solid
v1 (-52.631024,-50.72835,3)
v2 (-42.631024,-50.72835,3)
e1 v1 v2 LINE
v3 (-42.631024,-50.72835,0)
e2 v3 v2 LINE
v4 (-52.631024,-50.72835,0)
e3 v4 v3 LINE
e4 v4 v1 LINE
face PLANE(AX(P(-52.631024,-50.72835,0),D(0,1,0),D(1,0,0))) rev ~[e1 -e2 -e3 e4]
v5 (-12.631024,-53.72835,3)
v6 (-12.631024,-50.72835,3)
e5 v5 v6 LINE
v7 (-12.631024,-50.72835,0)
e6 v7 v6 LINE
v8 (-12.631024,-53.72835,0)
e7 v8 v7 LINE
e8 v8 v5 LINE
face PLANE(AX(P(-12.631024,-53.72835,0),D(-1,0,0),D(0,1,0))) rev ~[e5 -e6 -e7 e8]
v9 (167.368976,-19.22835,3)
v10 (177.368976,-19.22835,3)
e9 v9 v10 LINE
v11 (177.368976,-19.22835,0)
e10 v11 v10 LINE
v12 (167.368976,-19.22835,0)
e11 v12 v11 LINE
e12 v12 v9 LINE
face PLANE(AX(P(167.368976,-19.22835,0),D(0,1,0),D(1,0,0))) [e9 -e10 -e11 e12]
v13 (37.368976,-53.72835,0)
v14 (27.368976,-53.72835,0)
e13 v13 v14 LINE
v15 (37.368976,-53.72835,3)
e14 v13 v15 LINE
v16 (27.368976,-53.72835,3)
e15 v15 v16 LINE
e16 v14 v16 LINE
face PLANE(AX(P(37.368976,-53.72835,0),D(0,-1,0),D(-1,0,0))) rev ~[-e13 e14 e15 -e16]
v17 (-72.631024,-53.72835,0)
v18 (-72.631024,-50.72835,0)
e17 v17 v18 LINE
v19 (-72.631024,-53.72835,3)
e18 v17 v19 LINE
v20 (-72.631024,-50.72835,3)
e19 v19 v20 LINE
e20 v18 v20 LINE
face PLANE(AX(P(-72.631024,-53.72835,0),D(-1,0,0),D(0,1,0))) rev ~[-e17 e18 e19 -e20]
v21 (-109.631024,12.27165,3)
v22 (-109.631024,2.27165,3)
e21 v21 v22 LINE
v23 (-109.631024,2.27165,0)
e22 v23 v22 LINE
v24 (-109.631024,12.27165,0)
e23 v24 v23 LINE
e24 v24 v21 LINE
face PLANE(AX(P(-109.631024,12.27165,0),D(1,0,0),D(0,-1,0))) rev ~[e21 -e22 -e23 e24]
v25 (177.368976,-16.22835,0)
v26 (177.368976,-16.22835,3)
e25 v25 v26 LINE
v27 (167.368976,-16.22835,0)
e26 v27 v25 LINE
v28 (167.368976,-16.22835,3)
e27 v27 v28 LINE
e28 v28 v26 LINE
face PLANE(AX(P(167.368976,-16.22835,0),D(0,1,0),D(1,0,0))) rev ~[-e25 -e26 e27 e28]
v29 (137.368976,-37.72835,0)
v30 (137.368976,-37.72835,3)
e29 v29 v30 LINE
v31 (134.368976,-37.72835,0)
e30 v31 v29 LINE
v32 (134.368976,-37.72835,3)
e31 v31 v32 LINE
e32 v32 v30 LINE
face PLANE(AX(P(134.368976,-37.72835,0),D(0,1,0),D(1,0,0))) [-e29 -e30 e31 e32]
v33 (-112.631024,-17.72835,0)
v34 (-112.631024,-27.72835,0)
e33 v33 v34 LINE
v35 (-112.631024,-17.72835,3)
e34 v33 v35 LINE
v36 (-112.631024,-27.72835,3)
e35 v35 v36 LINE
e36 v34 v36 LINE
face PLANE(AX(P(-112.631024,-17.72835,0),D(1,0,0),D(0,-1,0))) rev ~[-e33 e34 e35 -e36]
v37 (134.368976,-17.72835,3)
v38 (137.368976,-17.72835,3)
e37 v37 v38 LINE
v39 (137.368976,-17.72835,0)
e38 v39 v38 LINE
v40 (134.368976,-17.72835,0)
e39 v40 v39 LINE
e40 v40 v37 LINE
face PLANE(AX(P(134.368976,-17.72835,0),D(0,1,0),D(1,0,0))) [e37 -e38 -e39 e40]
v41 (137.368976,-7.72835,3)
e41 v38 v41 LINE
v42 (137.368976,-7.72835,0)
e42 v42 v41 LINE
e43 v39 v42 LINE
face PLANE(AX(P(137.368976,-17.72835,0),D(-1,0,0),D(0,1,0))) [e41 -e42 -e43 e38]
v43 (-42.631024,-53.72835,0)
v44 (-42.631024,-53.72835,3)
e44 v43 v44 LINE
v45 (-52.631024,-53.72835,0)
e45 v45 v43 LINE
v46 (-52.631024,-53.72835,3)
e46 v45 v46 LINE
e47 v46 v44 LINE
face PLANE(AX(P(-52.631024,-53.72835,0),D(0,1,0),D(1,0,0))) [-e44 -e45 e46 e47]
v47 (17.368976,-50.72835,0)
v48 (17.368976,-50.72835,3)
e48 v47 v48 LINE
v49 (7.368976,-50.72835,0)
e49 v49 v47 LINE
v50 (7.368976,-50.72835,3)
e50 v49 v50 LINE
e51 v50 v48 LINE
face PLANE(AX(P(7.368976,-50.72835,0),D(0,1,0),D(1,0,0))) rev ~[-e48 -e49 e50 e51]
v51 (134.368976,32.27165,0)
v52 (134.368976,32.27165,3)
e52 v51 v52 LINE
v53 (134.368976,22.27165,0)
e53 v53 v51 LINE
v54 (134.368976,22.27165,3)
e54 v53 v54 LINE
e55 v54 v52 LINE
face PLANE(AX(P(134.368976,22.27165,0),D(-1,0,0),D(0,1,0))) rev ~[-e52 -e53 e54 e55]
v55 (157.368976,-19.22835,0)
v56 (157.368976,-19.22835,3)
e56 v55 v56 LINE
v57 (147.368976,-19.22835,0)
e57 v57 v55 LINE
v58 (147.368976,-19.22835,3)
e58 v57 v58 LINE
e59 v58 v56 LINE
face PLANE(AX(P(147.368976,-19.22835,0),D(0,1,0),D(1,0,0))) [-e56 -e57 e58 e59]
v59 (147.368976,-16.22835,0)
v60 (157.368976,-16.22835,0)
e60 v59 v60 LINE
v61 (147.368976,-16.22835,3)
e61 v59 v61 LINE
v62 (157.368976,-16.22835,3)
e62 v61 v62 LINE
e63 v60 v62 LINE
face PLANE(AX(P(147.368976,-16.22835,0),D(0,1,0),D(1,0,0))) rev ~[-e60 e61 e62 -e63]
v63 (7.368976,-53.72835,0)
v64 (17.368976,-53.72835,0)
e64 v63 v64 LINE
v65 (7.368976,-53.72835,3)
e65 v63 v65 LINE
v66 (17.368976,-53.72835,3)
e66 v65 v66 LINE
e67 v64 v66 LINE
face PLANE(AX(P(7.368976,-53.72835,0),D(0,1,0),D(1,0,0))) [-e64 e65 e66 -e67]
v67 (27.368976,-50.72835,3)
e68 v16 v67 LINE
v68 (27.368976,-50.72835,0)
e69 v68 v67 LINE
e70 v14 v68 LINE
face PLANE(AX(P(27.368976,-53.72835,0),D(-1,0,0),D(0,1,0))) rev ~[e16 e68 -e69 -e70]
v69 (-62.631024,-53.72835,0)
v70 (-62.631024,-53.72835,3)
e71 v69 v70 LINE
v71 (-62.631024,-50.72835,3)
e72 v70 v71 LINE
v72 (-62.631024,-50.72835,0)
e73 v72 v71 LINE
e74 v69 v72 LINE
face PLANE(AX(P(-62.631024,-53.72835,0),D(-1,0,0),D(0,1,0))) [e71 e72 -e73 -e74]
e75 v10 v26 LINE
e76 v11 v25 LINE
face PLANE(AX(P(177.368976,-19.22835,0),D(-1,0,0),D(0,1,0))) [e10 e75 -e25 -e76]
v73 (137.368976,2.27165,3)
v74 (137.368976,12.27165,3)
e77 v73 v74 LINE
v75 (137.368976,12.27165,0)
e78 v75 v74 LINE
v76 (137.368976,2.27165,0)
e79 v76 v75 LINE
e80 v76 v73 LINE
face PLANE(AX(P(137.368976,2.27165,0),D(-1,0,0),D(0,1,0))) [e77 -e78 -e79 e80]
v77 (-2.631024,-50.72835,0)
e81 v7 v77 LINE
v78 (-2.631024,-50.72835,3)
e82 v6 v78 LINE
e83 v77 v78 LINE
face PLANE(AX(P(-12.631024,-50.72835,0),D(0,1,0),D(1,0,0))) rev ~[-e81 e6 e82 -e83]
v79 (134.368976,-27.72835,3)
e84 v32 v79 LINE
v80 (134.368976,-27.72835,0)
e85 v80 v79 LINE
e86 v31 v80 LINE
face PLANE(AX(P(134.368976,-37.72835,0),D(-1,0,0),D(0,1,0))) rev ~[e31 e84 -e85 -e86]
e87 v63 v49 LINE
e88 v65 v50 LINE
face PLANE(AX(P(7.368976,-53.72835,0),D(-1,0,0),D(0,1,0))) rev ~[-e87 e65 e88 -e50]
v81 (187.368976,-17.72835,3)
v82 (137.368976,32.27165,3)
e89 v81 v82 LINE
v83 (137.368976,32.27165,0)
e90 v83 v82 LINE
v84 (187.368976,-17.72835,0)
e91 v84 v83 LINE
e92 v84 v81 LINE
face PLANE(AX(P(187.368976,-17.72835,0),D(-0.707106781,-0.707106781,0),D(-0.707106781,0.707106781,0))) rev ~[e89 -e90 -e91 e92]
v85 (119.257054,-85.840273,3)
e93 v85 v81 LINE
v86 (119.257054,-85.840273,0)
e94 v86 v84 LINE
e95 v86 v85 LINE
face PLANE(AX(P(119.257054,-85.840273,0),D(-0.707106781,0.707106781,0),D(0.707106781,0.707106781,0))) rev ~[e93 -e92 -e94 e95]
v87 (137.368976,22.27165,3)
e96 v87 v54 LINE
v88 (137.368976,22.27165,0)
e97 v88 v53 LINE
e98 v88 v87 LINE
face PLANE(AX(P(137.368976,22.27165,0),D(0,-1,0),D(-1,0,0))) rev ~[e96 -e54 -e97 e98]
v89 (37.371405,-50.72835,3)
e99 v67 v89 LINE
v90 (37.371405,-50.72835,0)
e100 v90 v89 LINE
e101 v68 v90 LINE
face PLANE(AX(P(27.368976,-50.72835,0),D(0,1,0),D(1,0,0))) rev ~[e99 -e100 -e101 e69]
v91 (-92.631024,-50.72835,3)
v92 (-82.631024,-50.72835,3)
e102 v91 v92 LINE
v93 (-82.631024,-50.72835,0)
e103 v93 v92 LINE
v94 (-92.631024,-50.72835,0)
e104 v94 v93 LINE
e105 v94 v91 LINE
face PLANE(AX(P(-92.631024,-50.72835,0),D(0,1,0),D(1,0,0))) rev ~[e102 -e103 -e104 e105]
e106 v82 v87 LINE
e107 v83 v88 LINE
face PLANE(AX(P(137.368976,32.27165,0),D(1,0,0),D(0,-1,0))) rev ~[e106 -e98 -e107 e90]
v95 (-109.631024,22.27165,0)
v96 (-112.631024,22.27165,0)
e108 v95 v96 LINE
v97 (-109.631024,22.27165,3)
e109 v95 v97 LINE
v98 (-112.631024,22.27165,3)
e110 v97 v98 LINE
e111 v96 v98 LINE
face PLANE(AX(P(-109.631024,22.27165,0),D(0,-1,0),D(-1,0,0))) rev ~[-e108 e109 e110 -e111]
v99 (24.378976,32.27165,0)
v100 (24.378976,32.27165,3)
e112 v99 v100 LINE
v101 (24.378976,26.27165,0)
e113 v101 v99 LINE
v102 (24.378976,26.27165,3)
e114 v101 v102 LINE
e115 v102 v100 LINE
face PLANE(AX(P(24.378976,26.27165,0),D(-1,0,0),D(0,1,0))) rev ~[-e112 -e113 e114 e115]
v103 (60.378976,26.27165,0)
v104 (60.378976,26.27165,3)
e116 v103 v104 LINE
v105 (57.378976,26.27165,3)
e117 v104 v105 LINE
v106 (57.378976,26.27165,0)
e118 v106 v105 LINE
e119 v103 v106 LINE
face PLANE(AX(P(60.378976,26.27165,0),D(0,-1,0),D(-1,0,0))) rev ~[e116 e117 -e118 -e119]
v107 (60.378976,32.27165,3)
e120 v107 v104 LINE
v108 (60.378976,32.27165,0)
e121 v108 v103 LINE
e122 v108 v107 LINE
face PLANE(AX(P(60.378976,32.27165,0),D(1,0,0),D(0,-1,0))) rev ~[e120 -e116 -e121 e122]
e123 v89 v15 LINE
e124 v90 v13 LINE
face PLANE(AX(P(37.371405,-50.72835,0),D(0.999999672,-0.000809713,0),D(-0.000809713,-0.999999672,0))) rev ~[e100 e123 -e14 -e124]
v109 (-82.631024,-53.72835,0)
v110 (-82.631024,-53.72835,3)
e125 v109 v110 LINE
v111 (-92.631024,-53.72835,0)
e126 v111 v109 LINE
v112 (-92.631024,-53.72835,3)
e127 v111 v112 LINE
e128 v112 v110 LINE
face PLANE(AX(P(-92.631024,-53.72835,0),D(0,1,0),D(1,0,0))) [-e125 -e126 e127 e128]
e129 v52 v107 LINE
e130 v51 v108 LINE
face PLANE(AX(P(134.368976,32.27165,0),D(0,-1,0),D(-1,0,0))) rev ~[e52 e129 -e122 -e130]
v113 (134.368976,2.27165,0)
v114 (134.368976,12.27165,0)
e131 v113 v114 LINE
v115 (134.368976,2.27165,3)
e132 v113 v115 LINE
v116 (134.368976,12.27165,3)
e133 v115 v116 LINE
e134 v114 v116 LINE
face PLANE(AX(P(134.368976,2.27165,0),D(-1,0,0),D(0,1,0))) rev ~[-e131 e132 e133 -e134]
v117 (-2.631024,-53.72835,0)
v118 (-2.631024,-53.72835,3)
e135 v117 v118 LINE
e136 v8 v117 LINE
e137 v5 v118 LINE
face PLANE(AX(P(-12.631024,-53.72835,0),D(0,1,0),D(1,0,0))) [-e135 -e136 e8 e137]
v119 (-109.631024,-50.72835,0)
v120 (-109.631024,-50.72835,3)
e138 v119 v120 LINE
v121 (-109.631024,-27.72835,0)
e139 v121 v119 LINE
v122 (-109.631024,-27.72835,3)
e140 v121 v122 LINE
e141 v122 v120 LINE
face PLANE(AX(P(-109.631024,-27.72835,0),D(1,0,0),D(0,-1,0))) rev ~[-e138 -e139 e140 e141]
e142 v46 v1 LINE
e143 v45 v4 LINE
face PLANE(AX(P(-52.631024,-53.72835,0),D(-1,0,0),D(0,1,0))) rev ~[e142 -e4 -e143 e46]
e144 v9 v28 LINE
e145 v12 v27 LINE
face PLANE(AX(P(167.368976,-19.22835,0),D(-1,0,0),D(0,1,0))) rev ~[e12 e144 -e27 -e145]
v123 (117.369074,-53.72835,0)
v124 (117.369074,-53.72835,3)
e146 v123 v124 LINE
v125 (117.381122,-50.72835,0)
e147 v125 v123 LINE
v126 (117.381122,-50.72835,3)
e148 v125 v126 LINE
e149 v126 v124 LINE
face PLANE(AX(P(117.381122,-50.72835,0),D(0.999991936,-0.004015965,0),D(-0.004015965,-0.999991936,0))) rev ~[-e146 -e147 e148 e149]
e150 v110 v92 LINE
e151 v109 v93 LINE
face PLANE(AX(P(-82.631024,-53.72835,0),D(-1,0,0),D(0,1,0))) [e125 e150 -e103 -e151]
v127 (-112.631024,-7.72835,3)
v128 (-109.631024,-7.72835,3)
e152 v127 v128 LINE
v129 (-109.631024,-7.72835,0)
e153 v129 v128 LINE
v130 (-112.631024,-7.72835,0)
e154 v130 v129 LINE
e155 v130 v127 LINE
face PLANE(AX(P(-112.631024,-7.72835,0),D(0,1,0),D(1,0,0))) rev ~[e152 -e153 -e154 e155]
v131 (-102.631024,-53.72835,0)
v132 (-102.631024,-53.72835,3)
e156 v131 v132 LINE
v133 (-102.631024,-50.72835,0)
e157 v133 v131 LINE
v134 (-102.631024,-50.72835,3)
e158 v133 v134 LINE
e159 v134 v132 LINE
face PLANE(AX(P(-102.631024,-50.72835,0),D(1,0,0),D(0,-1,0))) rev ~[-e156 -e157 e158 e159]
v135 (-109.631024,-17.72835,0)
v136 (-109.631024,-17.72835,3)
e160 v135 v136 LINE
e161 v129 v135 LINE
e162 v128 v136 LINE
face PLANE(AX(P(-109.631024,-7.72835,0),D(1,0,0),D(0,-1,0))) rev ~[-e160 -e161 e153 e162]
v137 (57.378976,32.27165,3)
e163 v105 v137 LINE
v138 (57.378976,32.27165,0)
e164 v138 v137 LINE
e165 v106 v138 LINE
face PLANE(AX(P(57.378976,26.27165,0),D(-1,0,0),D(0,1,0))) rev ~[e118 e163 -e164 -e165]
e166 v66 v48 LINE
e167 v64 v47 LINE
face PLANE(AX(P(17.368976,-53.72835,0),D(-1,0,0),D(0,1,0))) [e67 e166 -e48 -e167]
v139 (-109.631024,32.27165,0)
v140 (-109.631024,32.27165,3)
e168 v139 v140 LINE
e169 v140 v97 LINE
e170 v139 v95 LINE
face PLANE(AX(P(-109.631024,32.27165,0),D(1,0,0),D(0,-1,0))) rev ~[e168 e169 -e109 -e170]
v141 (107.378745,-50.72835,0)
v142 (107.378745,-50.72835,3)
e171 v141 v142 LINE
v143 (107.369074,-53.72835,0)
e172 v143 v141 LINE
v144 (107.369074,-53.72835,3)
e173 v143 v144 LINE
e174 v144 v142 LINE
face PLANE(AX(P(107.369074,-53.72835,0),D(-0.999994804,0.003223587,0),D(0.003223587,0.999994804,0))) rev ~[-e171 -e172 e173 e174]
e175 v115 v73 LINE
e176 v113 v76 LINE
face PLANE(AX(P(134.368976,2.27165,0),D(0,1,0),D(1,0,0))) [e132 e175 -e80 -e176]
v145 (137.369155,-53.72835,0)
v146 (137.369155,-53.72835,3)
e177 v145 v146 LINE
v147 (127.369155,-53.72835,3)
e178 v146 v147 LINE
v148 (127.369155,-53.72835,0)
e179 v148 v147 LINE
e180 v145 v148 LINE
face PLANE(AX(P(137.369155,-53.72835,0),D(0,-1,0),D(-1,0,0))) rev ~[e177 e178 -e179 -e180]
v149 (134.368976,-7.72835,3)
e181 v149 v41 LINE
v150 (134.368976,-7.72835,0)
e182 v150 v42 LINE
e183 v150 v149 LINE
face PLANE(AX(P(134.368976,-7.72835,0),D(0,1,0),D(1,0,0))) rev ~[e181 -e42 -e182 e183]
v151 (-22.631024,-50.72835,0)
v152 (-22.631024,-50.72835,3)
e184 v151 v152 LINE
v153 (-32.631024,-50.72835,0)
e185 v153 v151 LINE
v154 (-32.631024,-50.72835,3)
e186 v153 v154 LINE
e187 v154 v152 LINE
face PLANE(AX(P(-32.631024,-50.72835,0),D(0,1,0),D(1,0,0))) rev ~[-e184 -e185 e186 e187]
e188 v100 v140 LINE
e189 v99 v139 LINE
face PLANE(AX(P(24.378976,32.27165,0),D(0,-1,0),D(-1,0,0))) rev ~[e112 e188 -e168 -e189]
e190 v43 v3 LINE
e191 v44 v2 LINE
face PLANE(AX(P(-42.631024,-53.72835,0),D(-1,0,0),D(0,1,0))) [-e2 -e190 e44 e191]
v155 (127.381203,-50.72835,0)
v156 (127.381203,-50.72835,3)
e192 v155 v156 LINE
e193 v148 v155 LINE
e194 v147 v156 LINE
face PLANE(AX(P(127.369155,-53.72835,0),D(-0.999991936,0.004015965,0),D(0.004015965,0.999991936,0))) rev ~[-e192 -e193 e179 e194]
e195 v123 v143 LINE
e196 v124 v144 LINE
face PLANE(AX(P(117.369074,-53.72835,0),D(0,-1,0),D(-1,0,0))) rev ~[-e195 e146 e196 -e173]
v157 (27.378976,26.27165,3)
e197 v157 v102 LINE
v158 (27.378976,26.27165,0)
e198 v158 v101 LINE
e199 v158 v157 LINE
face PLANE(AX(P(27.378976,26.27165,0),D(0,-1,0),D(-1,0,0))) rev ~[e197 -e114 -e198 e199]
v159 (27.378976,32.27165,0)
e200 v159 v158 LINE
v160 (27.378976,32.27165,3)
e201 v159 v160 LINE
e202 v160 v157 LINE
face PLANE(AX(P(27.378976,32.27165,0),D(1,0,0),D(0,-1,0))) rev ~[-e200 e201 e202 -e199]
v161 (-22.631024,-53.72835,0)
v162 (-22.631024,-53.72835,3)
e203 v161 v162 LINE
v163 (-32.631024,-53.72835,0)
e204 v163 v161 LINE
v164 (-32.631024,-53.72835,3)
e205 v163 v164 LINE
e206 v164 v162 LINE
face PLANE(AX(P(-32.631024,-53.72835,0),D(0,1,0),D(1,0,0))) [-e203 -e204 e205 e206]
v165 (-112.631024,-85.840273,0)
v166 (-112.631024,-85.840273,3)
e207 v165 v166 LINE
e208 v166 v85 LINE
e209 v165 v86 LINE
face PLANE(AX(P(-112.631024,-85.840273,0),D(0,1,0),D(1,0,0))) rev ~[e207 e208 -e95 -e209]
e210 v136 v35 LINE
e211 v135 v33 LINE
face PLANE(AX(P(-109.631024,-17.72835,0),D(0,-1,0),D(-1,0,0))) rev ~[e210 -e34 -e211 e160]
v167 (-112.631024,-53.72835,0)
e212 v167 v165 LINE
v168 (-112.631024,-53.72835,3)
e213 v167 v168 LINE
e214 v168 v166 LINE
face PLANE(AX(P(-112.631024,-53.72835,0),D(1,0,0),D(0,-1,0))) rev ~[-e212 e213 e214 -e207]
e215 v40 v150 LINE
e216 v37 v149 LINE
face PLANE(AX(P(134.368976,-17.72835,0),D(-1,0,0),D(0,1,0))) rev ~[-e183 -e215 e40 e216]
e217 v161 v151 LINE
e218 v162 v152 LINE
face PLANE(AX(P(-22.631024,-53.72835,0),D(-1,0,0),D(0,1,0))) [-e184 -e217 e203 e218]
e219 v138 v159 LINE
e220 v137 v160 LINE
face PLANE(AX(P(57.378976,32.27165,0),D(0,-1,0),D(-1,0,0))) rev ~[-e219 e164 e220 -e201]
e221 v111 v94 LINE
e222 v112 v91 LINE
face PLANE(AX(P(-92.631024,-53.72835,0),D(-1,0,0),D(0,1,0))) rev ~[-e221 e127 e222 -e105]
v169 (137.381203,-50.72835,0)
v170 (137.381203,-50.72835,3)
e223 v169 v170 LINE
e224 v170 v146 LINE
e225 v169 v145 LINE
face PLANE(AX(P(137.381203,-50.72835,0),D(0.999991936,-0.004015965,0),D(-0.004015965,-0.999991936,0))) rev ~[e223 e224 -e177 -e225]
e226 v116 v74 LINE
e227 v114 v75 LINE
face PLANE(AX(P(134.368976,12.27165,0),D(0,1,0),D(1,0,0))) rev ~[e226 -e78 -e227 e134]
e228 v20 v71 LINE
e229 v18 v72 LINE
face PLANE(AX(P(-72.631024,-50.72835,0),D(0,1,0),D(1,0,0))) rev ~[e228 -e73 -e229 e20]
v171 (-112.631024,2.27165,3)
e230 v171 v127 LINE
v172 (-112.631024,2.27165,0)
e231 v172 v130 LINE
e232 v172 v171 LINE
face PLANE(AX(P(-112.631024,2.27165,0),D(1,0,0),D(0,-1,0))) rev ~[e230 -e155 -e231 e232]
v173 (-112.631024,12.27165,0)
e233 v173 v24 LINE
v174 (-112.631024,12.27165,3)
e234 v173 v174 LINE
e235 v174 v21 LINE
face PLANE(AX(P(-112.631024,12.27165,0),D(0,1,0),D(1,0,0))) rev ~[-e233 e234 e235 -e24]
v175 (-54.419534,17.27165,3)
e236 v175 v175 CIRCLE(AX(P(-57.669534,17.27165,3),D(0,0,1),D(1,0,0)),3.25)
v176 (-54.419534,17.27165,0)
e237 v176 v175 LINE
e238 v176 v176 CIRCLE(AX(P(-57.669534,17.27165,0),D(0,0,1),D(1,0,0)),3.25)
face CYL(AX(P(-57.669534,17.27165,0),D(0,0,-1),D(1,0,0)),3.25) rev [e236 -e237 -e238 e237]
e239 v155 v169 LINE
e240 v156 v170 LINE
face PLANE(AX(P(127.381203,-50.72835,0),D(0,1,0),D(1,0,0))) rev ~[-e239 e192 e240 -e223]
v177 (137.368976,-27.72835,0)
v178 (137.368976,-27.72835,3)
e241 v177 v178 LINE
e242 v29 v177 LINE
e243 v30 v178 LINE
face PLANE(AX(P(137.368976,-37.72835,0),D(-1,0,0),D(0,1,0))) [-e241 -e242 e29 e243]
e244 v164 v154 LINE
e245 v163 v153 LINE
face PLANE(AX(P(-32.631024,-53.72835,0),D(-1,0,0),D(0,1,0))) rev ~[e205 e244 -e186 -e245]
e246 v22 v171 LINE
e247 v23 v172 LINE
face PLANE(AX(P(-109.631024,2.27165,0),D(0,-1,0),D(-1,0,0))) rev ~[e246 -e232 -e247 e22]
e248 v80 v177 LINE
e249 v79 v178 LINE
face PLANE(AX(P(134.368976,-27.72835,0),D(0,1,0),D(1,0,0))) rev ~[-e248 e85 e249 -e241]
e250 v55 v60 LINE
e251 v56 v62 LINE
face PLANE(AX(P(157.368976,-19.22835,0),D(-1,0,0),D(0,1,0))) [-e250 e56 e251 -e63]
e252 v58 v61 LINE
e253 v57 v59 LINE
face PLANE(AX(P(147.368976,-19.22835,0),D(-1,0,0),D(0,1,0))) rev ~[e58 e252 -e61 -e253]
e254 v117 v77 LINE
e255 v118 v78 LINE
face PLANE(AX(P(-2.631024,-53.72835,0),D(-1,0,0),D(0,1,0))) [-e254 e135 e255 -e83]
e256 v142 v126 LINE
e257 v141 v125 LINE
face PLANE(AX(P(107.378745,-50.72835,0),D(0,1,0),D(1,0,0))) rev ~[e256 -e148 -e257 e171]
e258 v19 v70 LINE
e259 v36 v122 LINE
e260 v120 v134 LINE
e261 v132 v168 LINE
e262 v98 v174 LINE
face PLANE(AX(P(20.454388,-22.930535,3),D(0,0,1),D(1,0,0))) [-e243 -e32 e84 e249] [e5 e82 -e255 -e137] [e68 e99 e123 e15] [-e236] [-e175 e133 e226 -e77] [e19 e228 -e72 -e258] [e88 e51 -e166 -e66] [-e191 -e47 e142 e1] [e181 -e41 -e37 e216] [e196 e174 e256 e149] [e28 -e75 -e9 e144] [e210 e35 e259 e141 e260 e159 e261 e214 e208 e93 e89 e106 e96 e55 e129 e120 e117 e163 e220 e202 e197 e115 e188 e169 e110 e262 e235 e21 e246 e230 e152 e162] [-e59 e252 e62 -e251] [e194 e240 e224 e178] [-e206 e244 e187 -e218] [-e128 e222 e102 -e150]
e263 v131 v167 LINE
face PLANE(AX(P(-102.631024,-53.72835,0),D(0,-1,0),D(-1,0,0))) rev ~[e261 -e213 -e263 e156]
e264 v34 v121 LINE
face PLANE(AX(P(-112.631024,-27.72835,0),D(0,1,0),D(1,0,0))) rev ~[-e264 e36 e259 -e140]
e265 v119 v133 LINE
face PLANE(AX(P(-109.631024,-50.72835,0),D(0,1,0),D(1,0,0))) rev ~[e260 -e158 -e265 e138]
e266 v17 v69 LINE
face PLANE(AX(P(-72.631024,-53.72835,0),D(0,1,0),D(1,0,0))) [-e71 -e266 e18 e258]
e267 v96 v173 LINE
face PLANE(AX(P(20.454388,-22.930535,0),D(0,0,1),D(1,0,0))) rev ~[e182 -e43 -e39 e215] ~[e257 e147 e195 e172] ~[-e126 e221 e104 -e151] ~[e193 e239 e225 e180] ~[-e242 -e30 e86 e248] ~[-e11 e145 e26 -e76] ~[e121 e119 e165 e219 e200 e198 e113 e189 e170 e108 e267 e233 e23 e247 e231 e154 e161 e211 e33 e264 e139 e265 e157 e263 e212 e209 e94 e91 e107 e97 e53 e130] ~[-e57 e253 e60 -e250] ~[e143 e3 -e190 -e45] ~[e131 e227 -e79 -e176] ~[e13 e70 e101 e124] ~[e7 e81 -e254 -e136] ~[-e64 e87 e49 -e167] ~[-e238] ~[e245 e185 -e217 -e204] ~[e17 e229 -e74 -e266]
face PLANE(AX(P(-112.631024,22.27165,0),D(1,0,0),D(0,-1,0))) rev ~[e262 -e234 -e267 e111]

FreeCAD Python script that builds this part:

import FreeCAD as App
import Part
import Sketcher
Q = App.Units.Quantity

doc = App.newDocument("Part")
body = doc.addObject("PartDesign::Body", "Body")

# Sketch on XY plane
sketch1 = doc.addObject("Sketcher::SketchObject", "Sketch")
body.addObject(sketch1)
sketch1.AttachmentSupport = (doc.XY_Plane, [""])
sketch1.MapMode = "FlatFace"
sketch1.addGeometry(Part.LineSegment(App.Vector(-112.631024, -53.72835, 0), App.Vector(-112.631024, -85.840273, 0)), False)
sketch1.addGeometry(Part.LineSegment(App.Vector(-112.631024, -85.840273, 0), App.Vector(119.257054, -85.840273, 0)), False)
sketch1.addGeometry(Part.LineSegment(App.Vector(119.257054, -85.840273, 0), App.Vector(187.368976, -17.72835, 0)), False)
sketch1.addGeometry(Part.LineSegment(App.Vector(187.368976, -17.72835, 0), App.Vector(137.368976, 32.27165, 0)), False)
sketch1.addGeometry(Part.LineSegment(App.Vector(137.368976, 32.27165, 0), App.Vector(137.368976, 22.27165, 0)), False)
sketch1.addGeometry(Part.LineSegment(App.Vector(137.368976, 22.27165, 0), App.Vector(134.368976, 22.27165, 0)), False)
sketch1.addGeometry(Part.LineSegment(App.Vector(134.368976, 22.27165, 0), App.Vector(134.368976, 32.27165, 0)), False)
sketch1.addGeometry(Part.LineSegment(App.Vector(134.368976, 32.27165, 0), App.Vector(60.378976, 32.27165, 0)), False)
sketch1.addGeometry(Part.LineSegment(App.Vector(60.378976, 32.27165, 0), App.Vector(60.378976, 26.27165, 0)), False)
sketch1.addGeometry(Part.LineSegment(App.Vector(60.378976, 26.27165, 0), App.Vector(57.378976, 26.27165, 0)), False)
sketch1.addGeometry(Part.LineSegment(App.Vector(57.378976, 26.27165, 0), App.Vector(57.378976, 32.27165, 0)), False)
sketch1.addGeometry(Part.LineSegment(App.Vector(57.378976, 32.27165, 0), App.Vector(27.378976, 32.27165, 0)), False)
sketch1.addGeometry(Part.LineSegment(App.Vector(27.378976, 32.27165, 0), App.Vector(27.378976, 26.27165, 0)), False)
sketch1.addGeometry(Part.LineSegment(App.Vector(27.378976, 26.27165, 0), App.Vector(24.378976, 26.27165, 0)), False)
sketch1.addGeometry(Part.LineSegment(App.Vector(24.378976, 26.27165, 0), App.Vector(24.378976, 32.27165, 0)), False)
sketch1.addGeometry(Part.LineSegment(App.Vector(24.378976, 32.27165, 0), App.Vector(-109.631024, 32.27165, 0)), False)
sketch1.addGeometry(Part.LineSegment(App.Vector(-109.631024, 32.27165, 0), App.Vector(-109.631024, 22.27165, 0)), False)
sketch1.addGeometry(Part.LineSegment(App.Vector(-109.631024, 22.27165, 0), App.Vector(-112.631024, 22.27165, 0)), False)
sketch1.addGeometry(Part.LineSegment(App.Vector(-112.631024, 22.27165, 0), App.Vector(-112.631024, 12.27165, 0)), False)
sketch1.addGeometry(Part.LineSegment(App.Vector(-112.631024, 12.27165, 0), App.Vector(-109.631024, 12.27165, 0)), False)
sketch1.addGeometry(Part.LineSegment(App.Vector(-109.631024, 12.27165, 0), App.Vector(-109.631024, 2.27165, 0)), False)
sketch1.addGeometry(Part.LineSegment(App.Vector(-109.631024, 2.27165, 0), App.Vector(-112.631024, 2.27165, 0)), False)
sketch1.addGeometry(Part.LineSegment(App.Vector(-112.631024, 2.27165, 0), App.Vector(-112.631024, -7.72835, 0)), False)
sketch1.addGeometry(Part.LineSegment(App.Vector(-112.631024, -7.72835, 0), App.Vector(-109.631024, -7.72835, 0)), False)
sketch1.addGeometry(Part.LineSegment(App.Vector(-109.631024, -7.72835, 0), App.Vector(-109.631024, -17.72835, 0)), False)
sketch1.addGeometry(Part.LineSegment(App.Vector(-109.631024, -17.72835, 0), App.Vector(-112.631024, -17.72835, 0)), False)
sketch1.addGeometry(Part.LineSegment(App.Vector(-112.631024, -17.72835, 0), App.Vector(-112.631024, -27.72835, 0)), False)
sketch1.addGeometry(Part.LineSegment(App.Vector(-112.631024, -27.72835, 0), App.Vector(-109.631024, -27.72835, 0)), False)
sketch1.addGeometry(Part.LineSegment(App.Vector(-109.631024, -27.72835, 0), App.Vector(-109.631024, -50.72835, 0)), False)
sketch1.addGeometry(Part.LineSegment(App.Vector(-109.631024, -50.72835, 0), App.Vector(-102.631024, -50.72835, 0)), False)
sketch1.addGeometry(Part.LineSegment(App.Vector(-102.631024, -50.72835, 0), App.Vector(-102.631024, -53.72835, 0)), False)
sketch1.addGeometry(Part.LineSegment(App.Vector(-102.631024, -53.72835, 0), App.Vector(-112.631024, -53.72835, 0)), False)
sketch1.addGeometry(Part.LineSegment(App.Vector(-82.631024, -53.72835, 0), App.Vector(-92.631024, -53.72835, 0)), False)
sketch1.addGeometry(Part.LineSegment(App.Vector(-92.631024, -53.72835, 0), App.Vector(-92.631024, -50.72835, 0)), False)
sketch1.addGeometry(Part.LineSegment(App.Vector(-92.631024, -50.72835, 0), App.Vector(-82.631024, -50.72835, 0)), False)
sketch1.addGeometry(Part.LineSegment(App.Vector(-82.631024, -50.72835, 0), App.Vector(-82.631024, -53.72835, 0)), False)
sketch1.addGeometry(Part.LineSegment(App.Vector(-62.631024, -53.72835, 0), App.Vector(-72.631024, -53.72835, 0)), False)
sketch1.addGeometry(Part.LineSegment(App.Vector(-72.631024, -53.72835, 0), App.Vector(-72.631024, -50.72835, 0)), False)
sketch1.addGeometry(Part.LineSegment(App.Vector(-72.631024, -50.72835, 0), App.Vector(-62.631024, -50.72835, 0)), False)
sketch1.addGeometry(Part.LineSegment(App.Vector(-62.631024, -50.72835, 0), App.Vector(-62.631024, -53.72835, 0)), False)
sketch1.addGeometry(Part.LineSegment(App.Vector(-42.631024, -53.72835, 0), App.Vector(-52.631024, -53.72835, 0)), False)
sketch1.addGeometry(Part.LineSegment(App.Vector(-52.631024, -53.72835, 0), App.Vector(-52.631024, -50.72835, 0)), False)
sketch1.addGeometry(Part.LineSegment(App.Vector(-52.631024, -50.72835, 0), App.Vector(-42.631024, -50.72835, 0)), False)
sketch1.addGeometry(Part.LineSegment(App.Vector(-42.631024, -50.72835, 0), App.Vector(-42.631024, -53.72835, 0)), False)
sketch1.addGeometry(Part.LineSegment(App.Vector(-22.631024, -53.72835, 0), App.Vector(-32.631024, -53.72835, 0)), False)
sketch1.addGeometry(Part.LineSegment(App.Vector(-32.631024, -53.72835, 0), App.Vector(-32.631024, -50.72835, 0)), False)
sketch1.addGeometry(Part.LineSegment(App.Vector(-32.631024, -50.72835, 0), App.Vector(-22.631024, -50.72835, 0)), False)
sketch1.addGeometry(Part.LineSegment(App.Vector(-22.631024, -50.72835, 0), App.Vector(-22.631024, -53.72835, 0)), False)
sketch1.addGeometry(Part.LineSegment(App.Vector(-2.631024, -53.72835, 0), App.Vector(-12.631024, -53.72835, 0)), False)
sketch1.addGeometry(Part.LineSegment(App.Vector(-12.631024, -53.72835, 0), App.Vector(-12.631024, -50.72835, 0)), False)
sketch1.addGeometry(Part.LineSegment(App.Vector(-12.631024, -50.72835, 0), App.Vector(-2.631024, -50.72835, 0)), False)
sketch1.addGeometry(Part.LineSegment(App.Vector(-2.631024, -50.72835, 0), App.Vector(-2.631024, -53.72835, 0)), False)
sketch1.addGeometry(Part.LineSegment(App.Vector(17.368976, -53.72835, 0), App.Vector(7.368976, -53.72835, 0)), False)
sketch1.addGeometry(Part.LineSegment(App.Vector(7.368976, -53.72835, 0), App.Vector(7.368976, -50.72835, 0)), False)
sketch1.addGeometry(Part.LineSegment(App.Vector(7.368976, -50.72835, 0), App.Vector(17.368976, -50.72835, 0)), False)
sketch1.addGeometry(Part.LineSegment(App.Vector(17.368976, -50.72835, 0), App.Vector(17.368976, -53.72835, 0)), False)
sketch1.addGeometry(Part.LineSegment(App.Vector(27.368976, -53.72835, 0), App.Vector(27.368976, -50.72835, 0)), False)
sketch1.addGeometry(Part.LineSegment(App.Vector(27.368976, -50.72835, 0), App.Vector(37.371405, -50.72835, 0)), False)
sketch1.addGeometry(Part.LineSegment(App.Vector(37.371405, -50.72835, 0), App.Vector(37.368976, -53.72835, 0)), False)
sketch1.addGeometry(Part.LineSegment(App.Vector(37.368976, -53.72835, 0), App.Vector(27.368976, -53.72835, 0)), False)
sketch1.addGeometry(Part.LineSegment(App.Vector(107.369074, -53.72835, 0), App.Vector(107.378745, -50.72835, 0)), False)
sketch1.addGeometry(Part.LineSegment(App.Vector(107.378745, -50.72835, 0), App.Vector(117.381122, -50.72835, 0)), False)
sketch1.addGeometry(Part.LineSegment(App.Vector(117.381122, -50.72835, 0), App.Vector(117.369074, -53.72835, 0)), False)
sketch1.addGeometry(Part.LineSegment(App.Vector(117.369074, -53.72835, 0), App.Vector(107.369074, -53.72835, 0)), False)
sketch1.addGeometry(Part.LineSegment(App.Vector(127.369155, -53.72835, 0), App.Vector(127.381203, -50.72835, 0)), False)
sketch1.addGeometry(Part.LineSegment(App.Vector(127.381203, -50.72835, 0), App.Vector(137.381203, -50.72835, 0)), False)
sketch1.addGeometry(Part.LineSegment(App.Vector(137.381203, -50.72835, 0), App.Vector(137.369155, -53.72835, 0)), False)
sketch1.addGeometry(Part.LineSegment(App.Vector(137.369155, -53.72835, 0), App.Vector(127.369155, -53.72835, 0)), False)
sketch1.addGeometry(Part.LineSegment(App.Vector(137.368976, -37.72835, 0), App.Vector(134.368976, -37.72835, 0)), False)
sketch1.addGeometry(Part.LineSegment(App.Vector(134.368976, -37.72835, 0), App.Vector(134.368976, -27.72835, 0)), False)
sketch1.addGeometry(Part.LineSegment(App.Vector(134.368976, -27.72835, 0), App.Vector(137.368976, -27.72835, 0)), False)
sketch1.addGeometry(Part.LineSegment(App.Vector(137.368976, -27.72835, 0), App.Vector(137.368976, -37.72835, 0)), False)
sketch1.addGeometry(Part.LineSegment(App.Vector(157.368976, -19.22835, 0), App.Vector(147.368976, -19.22835, 0)), False)
sketch1.addGeometry(Part.LineSegment(App.Vector(147.368976, -19.22835, 0), App.Vector(147.368976, -16.22835, 0)), False)
sketch1.addGeometry(Part.LineSegment(App.Vector(147.368976, -16.22835, 0), App.Vector(157.368976, -16.22835, 0)), False)
sketch1.addGeometry(Part.LineSegment(App.Vector(157.368976, -16.22835, 0), App.Vector(157.368976, -19.22835, 0)), False)
sketch1.addGeometry(Part.LineSegment(App.Vector(177.368976, -19.22835, 0), App.Vector(167.368976, -19.22835, 0)), False)
sketch1.addGeometry(Part.LineSegment(App.Vector(167.368976, -19.22835, 0), App.Vector(167.368976, -16.22835, 0)), False)
sketch1.addGeometry(Part.LineSegment(App.Vector(167.368976, -16.22835, 0), App.Vector(177.368976, -16.22835, 0)), False)
sketch1.addGeometry(Part.LineSegment(App.Vector(177.368976, -16.22835, 0), App.Vector(177.368976, -19.22835, 0)), False)
sketch1.addGeometry(Part.Circle(App.Vector(-57.669534, 17.27165, 0), App.Vector(0, 0, 1), 3.25), False)
sketch1.addGeometry(Part.LineSegment(App.Vector(137.368976, -17.72835, 0), App.Vector(134.368976, -17.72835, 0)), False)
sketch1.addGeometry(Part.LineSegment(App.Vector(134.368976, -17.72835, 0), App.Vector(134.368976, -7.72835, 0)), False)
sketch1.addGeometry(Part.LineSegment(App.Vector(134.368976, -7.72835, 0), App.Vector(137.368976, -7.72835, 0)), False)
sketch1.addGeometry(Part.LineSegment(App.Vector(137.368976, -7.72835, 0), App.Vector(137.368976, -17.72835, 0)), False)
sketch1.addGeometry(Part.LineSegment(App.Vector(137.368976, 2.27165, 0), App.Vector(134.368976, 2.27165, 0)), False)
sketch1.addGeometry(Part.LineSegment(App.Vector(134.368976, 2.27165, 0), App.Vector(134.368976, 12.27165, 0)), False)
sketch1.addGeometry(Part.LineSegment(App.Vector(134.368976, 12.27165, 0), App.Vector(137.368976, 12.27165, 0)), False)
sketch1.addGeometry(Part.LineSegment(App.Vector(137.368976, 12.27165, 0), App.Vector(137.368976, 2.27165, 0)), False)
sketch1.addConstraint(Sketcher.Constraint("Coincident", 0, 2, 1, 1))
sketch1.addConstraint(Sketcher.Constraint("Coincident", 1, 2, 2, 1))
sketch1.addConstraint(Sketcher.Constraint("Coincident", 2, 2, 3, 1))
sketch1.addConstraint(Sketcher.Constraint("Coincident", 3, 2, 4, 1))
sketch1.addConstraint(Sketcher.Constraint("Coincident", 4, 2, 5, 1))
sketch1.addConstraint(Sketcher.Constraint("Coincident", 5, 2, 6, 1))
sketch1.addConstraint(Sketcher.Constraint("Coincident", 6, 2, 7, 1))
sketch1.addConstraint(Sketcher.Constraint("Coincident", 7, 2, 8, 1))
sketch1.addConstraint(Sketcher.Constraint("Coincident", 8, 2, 9, 1))
sketch1.addConstraint(Sketcher.Constraint("Coincident", 9, 2, 10, 1))
sketch1.addConstraint(Sketcher.Constraint("Coincident", 10, 2, 11, 1))
sketch1.addConstraint(Sketcher.Constraint("Coincident", 11, 2, 12, 1))
sketch1.addConstraint(Sketcher.Constraint("Coincident", 12, 2, 13, 1))
sketch1.addConstraint(Sketcher.Constraint("Coincident", 13, 2, 14, 1))
sketch1.addConstraint(Sketcher.Constraint("Coincident", 14, 2, 15, 1))
sketch1.addConstraint(Sketcher.Constraint("Coincident", 15, 2, 16, 1))
sketch1.addConstraint(Sketcher.Constraint("Coincident", 16, 2, 17, 1))
sketch1.addConstraint(Sketcher.Constraint("Coincident", 17, 2, 18, 1))
sketch1.addConstraint(Sketcher.Constraint("Coincident", 18, 2, 19, 1))
sketch1.addConstraint(Sketcher.Constraint("Coincident", 19, 2, 20, 1))
sketch1.addConstraint(Sketcher.Constraint("Coincident", 20, 2, 21, 1))
sketch1.addConstraint(Sketcher.Constraint("Coincident", 21, 2, 22, 1))
sketch1.addConstraint(Sketcher.Constraint("Coincident", 22, 2, 23, 1))
sketch1.addConstraint(Sketcher.Constraint("Coincident", 23, 2, 24, 1))
sketch1.addConstraint(Sketcher.Constraint("Coincident", 24, 2, 25, 1))
sketch1.addConstraint(Sketcher.Constraint("Coincident", 25, 2, 26, 1))
sketch1.addConstraint(Sketcher.Constraint("Coincident", 26, 2, 27, 1))
sketch1.addConstraint(Sketcher.Constraint("Coincident", 27, 2, 28, 1))
sketch1.addConstraint(Sketcher.Constraint("Coincident", 28, 2, 29, 1))
sketch1.addConstraint(Sketcher.Constraint("Coincident", 29, 2, 30, 1))
sketch1.addConstraint(Sketcher.Constraint("Coincident", 30, 2, 31, 1))
sketch1.addConstraint(Sketcher.Constraint("Coincident", 31, 2, 0, 1))
sketch1.addConstraint(Sketcher.Constraint("Coincident", 32, 2, 33, 1))
sketch1.addConstraint(Sketcher.Constraint("Coincident", 33, 2, 34, 1))
sketch1.addConstraint(Sketcher.Constraint("Coincident", 34, 2, 35, 1))
sketch1.addConstraint(Sketcher.Constraint("Coincident", 35, 2, 32, 1))
sketch1.addConstraint(Sketcher.Constraint("Coincident", 36, 2, 37, 1))
sketch1.addConstraint(Sketcher.Constraint("Coincident", 37, 2, 38, 1))
sketch1.addConstraint(Sketcher.Constraint("Coincident", 38, 2, 39, 1))
sketch1.addConstraint(Sketcher.Constraint("Coincident", 39, 2, 36, 1))
sketch1.addConstraint(Sketcher.Constraint("Coincident", 40, 2, 41, 1))
sketch1.addConstraint(Sketcher.Constraint("Coincident", 41, 2, 42, 1))
sketch1.addConstraint(Sketcher.Constraint("Coincident", 42, 2, 43, 1))
sketch1.addConstraint(Sketcher.Constraint("Coincident", 43, 2, 40, 1))
sketch1.addConstraint(Sketcher.Constraint("Coincident", 44, 2, 45, 1))
sketch1.addConstraint(Sketcher.Constraint("Coincident", 45, 2, 46, 1))
sketch1.addConstraint(Sketcher.Constraint("Coincident", 46, 2, 47, 1))
sketch1.addConstraint(Sketcher.Constraint("Coincident", 47, 2, 44, 1))
sketch1.addConstraint(Sketcher.Constraint("Coincident", 48, 2, 49, 1))
sketch1.addConstraint(Sketcher.Constraint("Coincident", 49, 2, 50, 1))
sketch1.addConstraint(Sketcher.Constraint("Coincident", 50, 2, 51, 1))
sketch1.addConstraint(Sketcher.Constraint("Coincident", 51, 2, 48, 1))
sketch1.addConstraint(Sketcher.Constraint("Coincident", 52, 2, 53, 1))
sketch1.addConstraint(Sketcher.Constraint("Coincident", 53, 2, 54, 1))
sketch1.addConstraint(Sketcher.Constraint("Coincident", 54, 2, 55, 1))
sketch1.addConstraint(Sketcher.Constraint("Coincident", 55, 2, 52, 1))
sketch1.addConstraint(Sketcher.Constraint("Coincident", 56, 2, 57, 1))
sketch1.addConstraint(Sketcher.Constraint("Coincident", 57, 2, 58, 1))
sketch1.addConstraint(Sketcher.Constraint("Coincident", 58, 2, 59, 1))
sketch1.addConstraint(Sketcher.Constraint("Coincident", 59, 2, 56, 1))
sketch1.addConstraint(Sketcher.Constraint("Coincident", 60, 2, 61, 1))
sketch1.addConstraint(Sketcher.Constraint("Coincident", 61, 2, 62, 1))
sketch1.addConstraint(Sketcher.Constraint("Coincident", 62, 2, 63, 1))
sketch1.addConstraint(Sketcher.Constraint("Coincident", 63, 2, 60, 1))
sketch1.addConstraint(Sketcher.Constraint("Coincident", 64, 2, 65, 1))
sketch1.addConstraint(Sketcher.Constraint("Coincident", 65, 2, 66, 1))
sketch1.addConstraint(Sketcher.Constraint("Coincident", 66, 2, 67, 1))
sketch1.addConstraint(Sketcher.Constraint("Coincident", 67, 2, 64, 1))
sketch1.addConstraint(Sketcher.Constraint("Coincident", 68, 2, 69, 1))
sketch1.addConstraint(Sketcher.Constraint("Coincident", 69, 2, 70, 1))
sketch1.addConstraint(Sketcher.Constraint("Coincident", 70, 2, 71, 1))
sketch1.addConstraint(Sketcher.Constraint("Coincident", 71, 2, 68, 1))
sketch1.addConstraint(Sketcher.Constraint("Coincident", 72, 2, 73, 1))
sketch1.addConstraint(Sketcher.Constraint("Coincident", 73, 2, 74, 1))
sketch1.addConstraint(Sketcher.Constraint("Coincident", 74, 2, 75, 1))
sketch1.addConstraint(Sketcher.Constraint("Coincident", 75, 2, 72, 1))
sketch1.addConstraint(Sketcher.Constraint("Coincident", 76, 2, 77, 1))
sketch1.addConstraint(Sketcher.Constraint("Coincident", 77, 2, 78, 1))
sketch1.addConstraint(Sketcher.Constraint("Coincident", 78, 2, 79, 1))
sketch1.addConstraint(Sketcher.Constraint("Coincident", 79, 2, 76, 1))
sketch1.addConstraint(Sketcher.Constraint("Coincident", 81, 2, 82, 1))
sketch1.addConstraint(Sketcher.Constraint("Coincident", 82, 2, 83, 1))
sketch1.addConstraint(Sketcher.Constraint("Coincident", 83, 2, 84, 1))
sketch1.addConstraint(Sketcher.Constraint("Coincident", 84, 2, 81, 1))
sketch1.addConstraint(Sketcher.Constraint("Coincident", 85, 2, 86, 1))
sketch1.addConstraint(Sketcher.Constraint("Coincident", 86, 2, 87, 1))
sketch1.addConstraint(Sketcher.Constraint("Coincident", 87, 2, 88, 1))
sketch1.addConstraint(Sketcher.Constraint("Coincident", 88, 2, 85, 1))
sketch1.addConstraint(Sketcher.Constraint("Vertical", 0))
sketch1.addConstraint(Sketcher.Constraint("Horizontal", 1))
sketch1.addConstraint(Sketcher.Constraint("Vertical", 4))
sketch1.addConstraint(Sketcher.Constraint("Horizontal", 5))
sketch1.addConstraint(Sketcher.Constraint("Vertical", 6))
sketch1.addConstraint(Sketcher.Constraint("Horizontal", 7))
sketch1.addConstraint(Sketcher.Constraint("Vertical", 8))
sketch1.addConstraint(Sketcher.Constraint("Horizontal", 9))
sketch1.addConstraint(Sketcher.Constraint("Vertical", 10))
sketch1.addConstraint(Sketcher.Constraint("Horizontal", 11))
sketch1.addConstraint(Sketcher.Constraint("Vertical", 12))
sketch1.addConstraint(Sketcher.Constraint("Horizontal", 13))
sketch1.addConstraint(Sketcher.Constraint("Vertical", 14))
sketch1.addConstraint(Sketcher.Constraint("Horizontal", 15))
sketch1.addConstraint(Sketcher.Constraint("Vertical", 16))
sketch1.addConstraint(Sketcher.Constraint("Horizontal", 17))
sketch1.addConstraint(Sketcher.Constraint("Vertical", 18))
sketch1.addConstraint(Sketcher.Constraint("Horizontal", 19))
sketch1.addConstraint(Sketcher.Constraint("Vertical", 20))
sketch1.addConstraint(Sketcher.Constraint("Horizontal", 21))
sketch1.addConstraint(Sketcher.Constraint("Vertical", 22))
sketch1.addConstraint(Sketcher.Constraint("Horizontal", 23))
sketch1.addConstraint(Sketcher.Constraint("Vertical", 24))
sketch1.addConstraint(Sketcher.Constraint("Horizontal", 25))
sketch1.addConstraint(Sketcher.Constraint("Vertical", 26))
sketch1.addConstraint(Sketcher.Constraint("Horizontal", 27))
sketch1.addConstraint(Sketcher.Constraint("Vertical", 28))
sketch1.addConstraint(Sketcher.Constraint("Horizontal", 29))
sketch1.addConstraint(Sketcher.Constraint("Vertical", 30))
sketch1.addConstraint(Sketcher.Constraint("Horizontal", 31))
sketch1.addConstraint(Sketcher.Constraint("Horizontal", 32))
sketch1.addConstraint(Sketcher.Constraint("Vertical", 33))
sketch1.addConstraint(Sketcher.Constraint("Horizontal", 34))
sketch1.addConstraint(Sketcher.Constraint("Vertical", 35))
sketch1.addConstraint(Sketcher.Constraint("Horizontal", 36))
sketch1.addConstraint(Sketcher.Constraint("Vertical", 37))
sketch1.addConstraint(Sketcher.Constraint("Horizontal", 38))
sketch1.addConstraint(Sketcher.Constraint("Vertical", 39))
sketch1.addConstraint(Sketcher.Constraint("Horizontal", 40))
sketch1.addConstraint(Sketcher.Constraint("Vertical", 41))
sketch1.addConstraint(Sketcher.Constraint("Horizontal", 42))
sketch1.addConstraint(Sketcher.Constraint("Vertical", 43))
sketch1.addConstraint(Sketcher.Constraint("Horizontal", 44))
sketch1.addConstraint(Sketcher.Constraint("Vertical", 45))
sketch1.addConstraint(Sketcher.Constraint("Horizontal", 46))
sketch1.addConstraint(Sketcher.Constraint("Vertical", 47))
sketch1.addConstraint(Sketcher.Constraint("Horizontal", 48))
sketch1.addConstraint(Sketcher.Constraint("Vertical", 49))
sketch1.addConstraint(Sketcher.Constraint("Horizontal", 50))
sketch1.addConstraint(Sketcher.Constraint("Vertical", 51))
sketch1.addConstraint(Sketcher.Constraint("Horizontal", 52))
sketch1.addConstraint(Sketcher.Constraint("Vertical", 53))
sketch1.addConstraint(Sketcher.Constraint("Horizontal", 54))
sketch1.addConstraint(Sketcher.Constraint("Vertical", 55))
sketch1.addConstraint(Sketcher.Constraint("Vertical", 56))
sketch1.addConstraint(Sketcher.Constraint("Horizontal", 57))
sketch1.addConstraint(Sketcher.Constraint("Horizontal", 59))
sketch1.addConstraint(Sketcher.Constraint("Horizontal", 61))
sketch1.addConstraint(Sketcher.Constraint("Horizontal", 63))
sketch1.addConstraint(Sketcher.Constraint("Horizontal", 65))
sketch1.addConstraint(Sketcher.Constraint("Horizontal", 67))
sketch1.addConstraint(Sketcher.Constraint("Horizontal", 68))
sketch1.addConstraint(Sketcher.Constraint("Vertical", 69))
sketch1.addConstraint(Sketcher.Constraint("Horizontal", 70))
sketch1.addConstraint(Sketcher.Constraint("Vertical", 71))
sketch1.addConstraint(Sketcher.Constraint("Horizontal", 72))
sketch1.addConstraint(Sketcher.Constraint("Vertical", 73))
sketch1.addConstraint(Sketcher.Constraint("Horizontal", 74))
sketch1.addConstraint(Sketcher.Constraint("Vertical", 75))
sketch1.addConstraint(Sketcher.Constraint("Horizontal", 76))
sketch1.addConstraint(Sketcher.Constraint("Vertical", 77))
sketch1.addConstraint(Sketcher.Constraint("Horizontal", 78))
sketch1.addConstraint(Sketcher.Constraint("Vertical", 79))
sketch1.addConstraint(Sketcher.Constraint("Horizontal", 81))
sketch1.addConstraint(Sketcher.Constraint("Vertical", 82))
sketch1.addConstraint(Sketcher.Constraint("Horizontal", 83))
sketch1.addConstraint(Sketcher.Constraint("Vertical", 84))
sketch1.addConstraint(Sketcher.Constraint("Horizontal", 85))
sketch1.addConstraint(Sketcher.Constraint("Vertical", 86))
sketch1.addConstraint(Sketcher.Constraint("Horizontal", 87))
sketch1.addConstraint(Sketcher.Constraint("Vertical", 88))
sketch1.addConstraint(Sketcher.Constraint("Perpendicular", 2, 3))
sketch1.addConstraint(Sketcher.Constraint("Parallel", 62, 64))
sketch1.addConstraint(Sketcher.Constraint("Parallel", 64, 66))
sketch1.addConstraint(Sketcher.Constraint("Horizontal", 3, 2, 6, 2))
sketch1.addConstraint(Sketcher.Constraint("Horizontal", 7, 2, 10, 2))
sketch1.addConstraint(Sketcher.Constraint("Horizontal", 9, 2, 12, 2))
sketch1.addConstraint(Sketcher.Constraint("Horizontal", 11, 2, 14, 2))
sketch1.addConstraint(Sketcher.Constraint("Horizontal", 5, 2, 16, 2))
sketch1.addConstraint(Sketcher.Constraint("Horizontal", 2, 2, 24, 2))
sketch1.addConstraint(Sketcher.Constraint("Horizontal", 31, 2, 32, 2))
sketch1.addConstraint(Sketcher.Constraint("Horizontal", 29, 2, 33, 2))
sketch1.addConstraint(Sketcher.Constraint("Horizontal", 35, 2, 36, 2))
sketch1.addConstraint(Sketcher.Constraint("Horizontal", 34, 2, 37, 2))
sketch1.addConstraint(Sketcher.Constraint("Horizontal", 39, 2, 40, 2))
sketch1.addConstraint(Sketcher.Constraint("Horizontal", 38, 2, 41, 2))
sketch1.addConstraint(Sketcher.Constraint("Horizontal", 43, 2, 44, 2))
sketch1.addConstraint(Sketcher.Constraint("Horizontal", 42, 2, 45, 2))
sketch1.addConstraint(Sketcher.Constraint("Horizontal", 47, 2, 48, 2))
sketch1.addConstraint(Sketcher.Constraint("Horizontal", 46, 2, 49, 2))
sketch1.addConstraint(Sketcher.Constraint("Horizontal", 51, 2, 52, 2))
sketch1.addConstraint(Sketcher.Constraint("Horizontal", 50, 2, 53, 2))
sketch1.addConstraint(Sketcher.Constraint("Horizontal", 54, 2, 56, 2))
sketch1.addConstraint(Sketcher.Constraint("Horizontal", 55, 2, 58, 2))
sketch1.addConstraint(Sketcher.Constraint("Horizontal", 57, 2, 60, 2))
sketch1.addConstraint(Sketcher.Constraint("Horizontal", 59, 2, 62, 2))
sketch1.addConstraint(Sketcher.Constraint("Horizontal", 61, 2, 64, 2))
sketch1.addConstraint(Sketcher.Constraint("Horizontal", 63, 2, 66, 2))
sketch1.addConstraint(Sketcher.Constraint("Horizontal", 27, 2, 69, 2))
sketch1.addConstraint(Sketcher.Constraint("Horizontal", 75, 2, 76, 2))
sketch1.addConstraint(Sketcher.Constraint("Horizontal", 74, 2, 77, 2))
sketch1.addConstraint(Sketcher.Constraint("Horizontal", 25, 2, 81, 2))
sketch1.addConstraint(Sketcher.Constraint("Horizontal", 23, 2, 82, 2))
sketch1.addConstraint(Sketcher.Constraint("Horizontal", 21, 2, 85, 2))
sketch1.addConstraint(Sketcher.Constraint("Horizontal", 19, 2, 86, 2))
sketch1.addConstraint(Sketcher.Constraint("Vertical", 0, 2, 17, 2))
sketch1.addConstraint(Sketcher.Constraint("Vertical", 16, 2, 19, 2))
sketch1.addConstraint(Sketcher.Constraint("Vertical", 18, 2, 21, 2))
sketch1.addConstraint(Sketcher.Constraint("Vertical", 20, 2, 23, 2))
sketch1.addConstraint(Sketcher.Constraint("Vertical", 22, 2, 25, 2))
sketch1.addConstraint(Sketcher.Constraint("Vertical", 24, 2, 27, 2))
sketch1.addConstraint(Sketcher.Constraint("Vertical", 6, 2, 68, 2))
sketch1.addConstraint(Sketcher.Constraint("Vertical", 4, 2, 70, 2))
sketch1.addConstraint(Sketcher.Constraint("Vertical", 69, 2, 81, 2))
sketch1.addConstraint(Sketcher.Constraint("Vertical", 71, 2, 83, 2))
sketch1.addConstraint(Sketcher.Constraint("Vertical", 82, 2, 85, 2))
sketch1.addConstraint(Sketcher.Constraint("Vertical", 84, 2, 87, 2))
sketch1.addConstraint(Sketcher.Constraint("Equal", 5, 9))
sketch1.addConstraint(Sketcher.Constraint("Equal", 9, 13))
sketch1.addConstraint(Sketcher.Constraint("Equal", 13, 17))
sketch1.addConstraint(Sketcher.Constraint("Equal", 31, 32))
sketch1.addConstraint(Sketcher.Constraint("Equal", 34, 36))
sketch1.addConstraint(Sketcher.Constraint("Equal", 38, 40))
sketch1.addConstraint(Sketcher.Constraint("Equal", 42, 44))
sketch1.addConstraint(Sketcher.Constraint("Equal", 46, 48))
sketch1.addConstraint(Sketcher.Constraint("Equal", 50, 52))
sketch1.addConstraint(Sketcher.Constraint("Equal", 54, 59))
sketch1.addConstraint(Sketcher.Constraint("Equal", 59, 63))
sketch1.addConstraint(Sketcher.Constraint("Equal", 63, 65))
sketch1.addConstraint(Sketcher.Constraint("Equal", 67, 72))
sketch1.addConstraint(Sketcher.Constraint("Equal", 74, 76))
sketch1.addConstraint(Sketcher.Constraint("Equal", 78, 4))
sketch1.addConstraint(Sketcher.Constraint("Equal", 16, 18))
sketch1.addConstraint(Sketcher.Constraint("Equal", 18, 20))
sketch1.addConstraint(Sketcher.Constraint("Equal", 20, 22))
sketch1.addConstraint(Sketcher.Constraint("Equal", 22, 24))
sketch1.addConstraint(Sketcher.Constraint("Equal", 24, 26))
sketch1.addConstraint(Sketcher.Constraint("Equal", 87, 30))
sketch1.addConstraint(Sketcher.Constraint("Equal", 26, 69))
sketch1.addConstraint(Sketcher.Constraint("Equal", 56, 73))
sketch1.addConstraint(Sketcher.Constraint("Diameter", 80, Q("6.5 mm")))
sketch1.addConstraint(Sketcher.Constraint("DistanceX", 5, 2, 5, 1, Q("3 mm")))
sketch1.addConstraint(Sketcher.Constraint("DistanceX", 11, 2, 11, 1, Q("30 mm")))
sketch1.addConstraint(Sketcher.Constraint("DistanceX", 29, 1, 29, 2, Q("7 mm")))
sketch1.addConstraint(Sketcher.Constraint("DistanceY", 8, 2, 8, 1, Q("6 mm")))
sketch1.addConstraint(Sketcher.Constraint("DistanceY", 28, 2, 28, 1, Q("23 mm")))
sketch1.addConstraint(Sketcher.Constraint("Angle", 2, Q("45 deg")))
sketch1.addConstraint(Sketcher.Constraint("DistanceX", 7, 2, 7, 1, Q("73.99 mm")))
sketch1.addConstraint(Sketcher.Constraint("DistanceX", 15, 2, 15, 1, Q("134.01 mm")))
sketch1.addConstraint(Sketcher.Constraint("DistanceX", 57, 1, 57, 2, Q("10.002429 mm")))
sketch1.addConstraint(Sketcher.Constraint("DistanceX", 1, 1, 1, 2, Q("231.888078 mm")))
sketch1.addConstraint(Sketcher.Constraint("DistanceX", 61, 1, 61, 2, Q("10.002377 mm")))
sketch1.addConstraint(Sketcher.Constraint("DistanceY", -1, 1, 80, 3, Q("17.27165 mm")))
sketch1.addConstraint(Sketcher.Constraint("DistanceY", 2, 2, -1, 1, Q("17.72835 mm")))
sketch1.addConstraint(Sketcher.Constraint("DistanceX", -1, 1, 61, 2, Q("117.381122 mm")))
sketch1.addConstraint(Sketcher.Constraint("DistanceY", 72, 2, -1, 1, Q("19.22835 mm")))
sketch1.addConstraint(Sketcher.Constraint("DistanceX", 80, 3, -1, 1, Q("57.669534 mm")))
sketch1.addConstraint(Sketcher.Constraint("DistanceX", 0, 2, -1, 1, Q("112.631024 mm")))
sketch1.addConstraint(Sketcher.Constraint("DistanceX", 32, 2, -1, 1, Q("92.631024 mm")))
sketch1.addConstraint(Sketcher.Constraint("DistanceX", 36, 2, -1, 1, Q("72.631024 mm")))
sketch1.addConstraint(Sketcher.Constraint("DistanceX", 40, 2, -1, 1, Q("52.631024 mm")))
sketch1.addConstraint(Sketcher.Constraint("DistanceX", 44, 2, -1, 1, Q("32.631024 mm")))
sketch1.addConstraint(Sketcher.Constraint("DistanceX", 48, 2, -1, 1, Q("12.631024 mm")))
sketch1.addConstraint(Sketcher.Constraint("DistanceX", -1, 1, 52, 2, Q("7.368976 mm")))
sketch1.addConstraint(Sketcher.Constraint("DistanceX", -1, 1, 56, 2, Q("27.368976 mm")))
sketch1.addConstraint(Sketcher.Constraint("DistanceX", -1, 1, 62, 2, Q("117.369074 mm")))
sketch1.addConstraint(Sketcher.Constraint("DistanceX", -1, 1, 64, 2, Q("127.381203 mm")))
sketch1.addConstraint(Sketcher.Constraint("DistanceX", -1, 1, 72, 2, Q("147.368976 mm")))
sketch1.addConstraint(Sketcher.Constraint("DistanceX", -1, 1, 76, 2, Q("167.368976 mm")))
pad1 = doc.addObject("PartDesign::Pad", "Pad")
body.addObject(pad1)
pad1.Profile = sketch1
pad1.Length = 3

doc.recompute()
